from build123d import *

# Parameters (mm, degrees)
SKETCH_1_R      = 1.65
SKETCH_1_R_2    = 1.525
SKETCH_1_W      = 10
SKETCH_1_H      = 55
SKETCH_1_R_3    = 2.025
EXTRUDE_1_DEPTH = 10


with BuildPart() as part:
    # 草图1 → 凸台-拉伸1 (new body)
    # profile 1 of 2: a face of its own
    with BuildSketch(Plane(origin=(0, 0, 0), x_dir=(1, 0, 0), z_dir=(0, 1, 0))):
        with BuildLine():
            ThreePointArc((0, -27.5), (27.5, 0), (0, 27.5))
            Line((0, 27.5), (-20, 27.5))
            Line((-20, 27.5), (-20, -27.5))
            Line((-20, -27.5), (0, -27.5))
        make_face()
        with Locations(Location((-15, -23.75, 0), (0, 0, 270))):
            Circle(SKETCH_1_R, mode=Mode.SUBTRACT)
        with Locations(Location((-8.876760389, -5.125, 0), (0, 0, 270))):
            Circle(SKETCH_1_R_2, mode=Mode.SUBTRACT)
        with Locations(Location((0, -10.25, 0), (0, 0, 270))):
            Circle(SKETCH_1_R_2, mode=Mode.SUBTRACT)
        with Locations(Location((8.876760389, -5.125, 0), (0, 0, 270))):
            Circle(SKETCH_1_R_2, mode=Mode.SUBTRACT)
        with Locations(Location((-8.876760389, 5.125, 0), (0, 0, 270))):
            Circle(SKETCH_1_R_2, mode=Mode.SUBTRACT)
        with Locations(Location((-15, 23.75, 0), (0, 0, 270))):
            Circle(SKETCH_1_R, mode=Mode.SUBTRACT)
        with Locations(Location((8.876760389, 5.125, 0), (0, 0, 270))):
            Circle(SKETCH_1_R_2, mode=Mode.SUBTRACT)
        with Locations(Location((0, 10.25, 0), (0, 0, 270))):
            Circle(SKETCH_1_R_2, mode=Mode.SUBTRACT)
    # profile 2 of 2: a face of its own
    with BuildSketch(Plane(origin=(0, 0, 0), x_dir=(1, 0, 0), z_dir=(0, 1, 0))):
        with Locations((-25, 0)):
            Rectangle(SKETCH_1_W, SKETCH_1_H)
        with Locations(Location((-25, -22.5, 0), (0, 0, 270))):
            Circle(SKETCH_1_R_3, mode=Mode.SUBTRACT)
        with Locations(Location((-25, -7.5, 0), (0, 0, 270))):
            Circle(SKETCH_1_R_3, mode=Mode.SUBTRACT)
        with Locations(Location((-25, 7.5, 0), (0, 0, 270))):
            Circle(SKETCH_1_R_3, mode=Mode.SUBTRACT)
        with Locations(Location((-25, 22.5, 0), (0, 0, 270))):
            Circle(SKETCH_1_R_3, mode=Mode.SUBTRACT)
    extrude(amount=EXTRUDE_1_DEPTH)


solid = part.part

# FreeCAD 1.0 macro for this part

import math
import FreeCAD as App
import Part
import Sketcher

V = App.Vector
Q = App.Units.Quantity

doc = App.newDocument("Part")
body = doc.addObject("PartDesign::Body", "Body")

# Sketch on XZ plane
sketch1 = body.newObject("Sketcher::SketchObject", "Sketch")
sketch1.AttachmentSupport = (doc.getObject("XZ_Plane"), [""])
sketch1.MapMode = "FlatFace"
sketch1.addGeometry([
    Part.ArcOfCircle(Part.Circle(V(0, 0, 0), V(0, 0, 1), 27.5), math.radians(-90), math.radians(90)),  # 0
    Part.LineSegment(V(0, -27.5, 0), V(-30, -27.5, 0)),  # 1
    Part.LineSegment(V(-30, -27.5, 0), V(-30, 27.5, 0)),  # 2
    Part.LineSegment(V(-30, 27.5, 0), V(0, 27.5, 0)),  # 3
    Part.Circle(V(-15, 23.8, 0), V(0, 0, 1), 1.6),  # 4
    Part.Circle(V(-8.9, 5.1, 0), V(0, 0, 1), 1.5),  # 5
    Part.Circle(V(0, 10.2, 0), V(0, 0, 1), 1.5),  # 6
    Part.Circle(V(8.9, 5.1, 0), V(0, 0, 1), 1.5),  # 7
    Part.Circle(V(-8.9, -5.1, 0), V(0, 0, 1), 1.5),  # 8
    Part.Circle(V(-15, -23.8, 0), V(0, 0, 1), 1.6),  # 9
    Part.Circle(V(0, -10.2, 0), V(0, 0, 1), 1.5),  # 10
    Part.Circle(V(8.9, -5.1, 0), V(0, 0, 1), 1.5),  # 11
    Part.Circle(V(-25, -22.5, 0), V(0, 0, 1), 2),  # 12
    Part.Circle(V(-25, 22.5, 0), V(0, 0, 1), 2),  # 13
    Part.Circle(V(-25, 7.5, 0), V(0, 0, 1), 2),  # 14
    Part.Circle(V(-25, -7.5, 0), V(0, 0, 1), 2),  # 15
], False)
sketch1.addConstraint([
    Sketcher.Constraint("Tangent", 0, 1, 1, 1),
    Sketcher.Constraint("Coincident", 1, 2, 2, 1),
    Sketcher.Constraint("Coincident", 2, 2, 3, 1),
    Sketcher.Constraint("Tangent", 3, 2, 0, 2),
    Sketcher.Constraint("Horizontal", 1),
    Sketcher.Constraint("Vertical", 2),
    Sketcher.Constraint("Horizontal", 3),
    Sketcher.Constraint("Coincident", 0, 3, -1, 1),
    Sketcher.Constraint("Equal", 5, 6),
    Sketcher.Constraint("Equal", 6, 7),
    Sketcher.Constraint("Equal", 7, 8),
    Sketcher.Constraint("Equal", 4, 9),
    Sketcher.Constraint("Equal", 8, 10),
    Sketcher.Constraint("Equal", 10, 11),
    Sketcher.Constraint("Equal", 12, 13),
    Sketcher.Constraint("Equal", 13, 14),
    Sketcher.Constraint("Equal", 14, 15),
    Sketcher.Constraint("Symmetric", 7, 3, 8, 3, -1, 1),
    Sketcher.Constraint("Symmetric", 6, 3, 10, 3, -1, 1),
    Sketcher.Constraint("Symmetric", 5, 3, 11, 3, -1, 1),
    Sketcher.Constraint("Symmetric", 5, 3, 7, 3, -2),
    Sketcher.Constraint("Symmetric", 4, 3, 9, 3, -1),
    Sketcher.Constraint("Symmetric", 12, 3, 13, 3, -1),
    Sketcher.Constraint("Symmetric", 14, 3, 15, 3, -1),
    Sketcher.Constraint("PointOnObject", 6, 3, -2),
    Sketcher.Constraint("Vertical", 13, 3, 14, 3),
    Sketcher.Constraint("Diameter", 4, Q("3.3 mm")),
    Sketcher.Constraint("Radius", 0, Q("27.5 mm")),
    Sketcher.Constraint("Diameter", 5, Q("3.05 mm")),
    Sketcher.Constraint("Diameter", 12, Q("4.05 mm")),
    Sketcher.Constraint("DistanceX", 1, 2, 1, 1, Q("30 mm")),
    Sketcher.Constraint("DistanceX", 4, 3, -1, 1, Q("15 mm")),
    Sketcher.Constraint("DistanceX", 12, 3, -1, 1, Q("25 mm")),
    Sketcher.Constraint("DistanceY", 9, 3, 6, 3, Q("34 mm")),
    Sketcher.Constraint("DistanceY", 14, 3, 13, 3, Q("15 mm")),
    Sketcher.Constraint("DistanceY", 15, 3, 14, 3, Q("15 mm")),
    Sketcher.Constraint("DistanceY", 6, 3, 4, 3, Q("13.5 mm")),
    Sketcher.Constraint("DistanceY", 8, 3, 5, 3, Q("10.25 mm")),
    Sketcher.Constraint("DistanceX", 5, 3, -1, 1, Q("8.87676 mm")),
])
pad1 = body.newObject("PartDesign::Pad", "Pad")
pad1.Profile = sketch1
pad1.Length = 10
pad1.Reversed = True

doc.recompute()
